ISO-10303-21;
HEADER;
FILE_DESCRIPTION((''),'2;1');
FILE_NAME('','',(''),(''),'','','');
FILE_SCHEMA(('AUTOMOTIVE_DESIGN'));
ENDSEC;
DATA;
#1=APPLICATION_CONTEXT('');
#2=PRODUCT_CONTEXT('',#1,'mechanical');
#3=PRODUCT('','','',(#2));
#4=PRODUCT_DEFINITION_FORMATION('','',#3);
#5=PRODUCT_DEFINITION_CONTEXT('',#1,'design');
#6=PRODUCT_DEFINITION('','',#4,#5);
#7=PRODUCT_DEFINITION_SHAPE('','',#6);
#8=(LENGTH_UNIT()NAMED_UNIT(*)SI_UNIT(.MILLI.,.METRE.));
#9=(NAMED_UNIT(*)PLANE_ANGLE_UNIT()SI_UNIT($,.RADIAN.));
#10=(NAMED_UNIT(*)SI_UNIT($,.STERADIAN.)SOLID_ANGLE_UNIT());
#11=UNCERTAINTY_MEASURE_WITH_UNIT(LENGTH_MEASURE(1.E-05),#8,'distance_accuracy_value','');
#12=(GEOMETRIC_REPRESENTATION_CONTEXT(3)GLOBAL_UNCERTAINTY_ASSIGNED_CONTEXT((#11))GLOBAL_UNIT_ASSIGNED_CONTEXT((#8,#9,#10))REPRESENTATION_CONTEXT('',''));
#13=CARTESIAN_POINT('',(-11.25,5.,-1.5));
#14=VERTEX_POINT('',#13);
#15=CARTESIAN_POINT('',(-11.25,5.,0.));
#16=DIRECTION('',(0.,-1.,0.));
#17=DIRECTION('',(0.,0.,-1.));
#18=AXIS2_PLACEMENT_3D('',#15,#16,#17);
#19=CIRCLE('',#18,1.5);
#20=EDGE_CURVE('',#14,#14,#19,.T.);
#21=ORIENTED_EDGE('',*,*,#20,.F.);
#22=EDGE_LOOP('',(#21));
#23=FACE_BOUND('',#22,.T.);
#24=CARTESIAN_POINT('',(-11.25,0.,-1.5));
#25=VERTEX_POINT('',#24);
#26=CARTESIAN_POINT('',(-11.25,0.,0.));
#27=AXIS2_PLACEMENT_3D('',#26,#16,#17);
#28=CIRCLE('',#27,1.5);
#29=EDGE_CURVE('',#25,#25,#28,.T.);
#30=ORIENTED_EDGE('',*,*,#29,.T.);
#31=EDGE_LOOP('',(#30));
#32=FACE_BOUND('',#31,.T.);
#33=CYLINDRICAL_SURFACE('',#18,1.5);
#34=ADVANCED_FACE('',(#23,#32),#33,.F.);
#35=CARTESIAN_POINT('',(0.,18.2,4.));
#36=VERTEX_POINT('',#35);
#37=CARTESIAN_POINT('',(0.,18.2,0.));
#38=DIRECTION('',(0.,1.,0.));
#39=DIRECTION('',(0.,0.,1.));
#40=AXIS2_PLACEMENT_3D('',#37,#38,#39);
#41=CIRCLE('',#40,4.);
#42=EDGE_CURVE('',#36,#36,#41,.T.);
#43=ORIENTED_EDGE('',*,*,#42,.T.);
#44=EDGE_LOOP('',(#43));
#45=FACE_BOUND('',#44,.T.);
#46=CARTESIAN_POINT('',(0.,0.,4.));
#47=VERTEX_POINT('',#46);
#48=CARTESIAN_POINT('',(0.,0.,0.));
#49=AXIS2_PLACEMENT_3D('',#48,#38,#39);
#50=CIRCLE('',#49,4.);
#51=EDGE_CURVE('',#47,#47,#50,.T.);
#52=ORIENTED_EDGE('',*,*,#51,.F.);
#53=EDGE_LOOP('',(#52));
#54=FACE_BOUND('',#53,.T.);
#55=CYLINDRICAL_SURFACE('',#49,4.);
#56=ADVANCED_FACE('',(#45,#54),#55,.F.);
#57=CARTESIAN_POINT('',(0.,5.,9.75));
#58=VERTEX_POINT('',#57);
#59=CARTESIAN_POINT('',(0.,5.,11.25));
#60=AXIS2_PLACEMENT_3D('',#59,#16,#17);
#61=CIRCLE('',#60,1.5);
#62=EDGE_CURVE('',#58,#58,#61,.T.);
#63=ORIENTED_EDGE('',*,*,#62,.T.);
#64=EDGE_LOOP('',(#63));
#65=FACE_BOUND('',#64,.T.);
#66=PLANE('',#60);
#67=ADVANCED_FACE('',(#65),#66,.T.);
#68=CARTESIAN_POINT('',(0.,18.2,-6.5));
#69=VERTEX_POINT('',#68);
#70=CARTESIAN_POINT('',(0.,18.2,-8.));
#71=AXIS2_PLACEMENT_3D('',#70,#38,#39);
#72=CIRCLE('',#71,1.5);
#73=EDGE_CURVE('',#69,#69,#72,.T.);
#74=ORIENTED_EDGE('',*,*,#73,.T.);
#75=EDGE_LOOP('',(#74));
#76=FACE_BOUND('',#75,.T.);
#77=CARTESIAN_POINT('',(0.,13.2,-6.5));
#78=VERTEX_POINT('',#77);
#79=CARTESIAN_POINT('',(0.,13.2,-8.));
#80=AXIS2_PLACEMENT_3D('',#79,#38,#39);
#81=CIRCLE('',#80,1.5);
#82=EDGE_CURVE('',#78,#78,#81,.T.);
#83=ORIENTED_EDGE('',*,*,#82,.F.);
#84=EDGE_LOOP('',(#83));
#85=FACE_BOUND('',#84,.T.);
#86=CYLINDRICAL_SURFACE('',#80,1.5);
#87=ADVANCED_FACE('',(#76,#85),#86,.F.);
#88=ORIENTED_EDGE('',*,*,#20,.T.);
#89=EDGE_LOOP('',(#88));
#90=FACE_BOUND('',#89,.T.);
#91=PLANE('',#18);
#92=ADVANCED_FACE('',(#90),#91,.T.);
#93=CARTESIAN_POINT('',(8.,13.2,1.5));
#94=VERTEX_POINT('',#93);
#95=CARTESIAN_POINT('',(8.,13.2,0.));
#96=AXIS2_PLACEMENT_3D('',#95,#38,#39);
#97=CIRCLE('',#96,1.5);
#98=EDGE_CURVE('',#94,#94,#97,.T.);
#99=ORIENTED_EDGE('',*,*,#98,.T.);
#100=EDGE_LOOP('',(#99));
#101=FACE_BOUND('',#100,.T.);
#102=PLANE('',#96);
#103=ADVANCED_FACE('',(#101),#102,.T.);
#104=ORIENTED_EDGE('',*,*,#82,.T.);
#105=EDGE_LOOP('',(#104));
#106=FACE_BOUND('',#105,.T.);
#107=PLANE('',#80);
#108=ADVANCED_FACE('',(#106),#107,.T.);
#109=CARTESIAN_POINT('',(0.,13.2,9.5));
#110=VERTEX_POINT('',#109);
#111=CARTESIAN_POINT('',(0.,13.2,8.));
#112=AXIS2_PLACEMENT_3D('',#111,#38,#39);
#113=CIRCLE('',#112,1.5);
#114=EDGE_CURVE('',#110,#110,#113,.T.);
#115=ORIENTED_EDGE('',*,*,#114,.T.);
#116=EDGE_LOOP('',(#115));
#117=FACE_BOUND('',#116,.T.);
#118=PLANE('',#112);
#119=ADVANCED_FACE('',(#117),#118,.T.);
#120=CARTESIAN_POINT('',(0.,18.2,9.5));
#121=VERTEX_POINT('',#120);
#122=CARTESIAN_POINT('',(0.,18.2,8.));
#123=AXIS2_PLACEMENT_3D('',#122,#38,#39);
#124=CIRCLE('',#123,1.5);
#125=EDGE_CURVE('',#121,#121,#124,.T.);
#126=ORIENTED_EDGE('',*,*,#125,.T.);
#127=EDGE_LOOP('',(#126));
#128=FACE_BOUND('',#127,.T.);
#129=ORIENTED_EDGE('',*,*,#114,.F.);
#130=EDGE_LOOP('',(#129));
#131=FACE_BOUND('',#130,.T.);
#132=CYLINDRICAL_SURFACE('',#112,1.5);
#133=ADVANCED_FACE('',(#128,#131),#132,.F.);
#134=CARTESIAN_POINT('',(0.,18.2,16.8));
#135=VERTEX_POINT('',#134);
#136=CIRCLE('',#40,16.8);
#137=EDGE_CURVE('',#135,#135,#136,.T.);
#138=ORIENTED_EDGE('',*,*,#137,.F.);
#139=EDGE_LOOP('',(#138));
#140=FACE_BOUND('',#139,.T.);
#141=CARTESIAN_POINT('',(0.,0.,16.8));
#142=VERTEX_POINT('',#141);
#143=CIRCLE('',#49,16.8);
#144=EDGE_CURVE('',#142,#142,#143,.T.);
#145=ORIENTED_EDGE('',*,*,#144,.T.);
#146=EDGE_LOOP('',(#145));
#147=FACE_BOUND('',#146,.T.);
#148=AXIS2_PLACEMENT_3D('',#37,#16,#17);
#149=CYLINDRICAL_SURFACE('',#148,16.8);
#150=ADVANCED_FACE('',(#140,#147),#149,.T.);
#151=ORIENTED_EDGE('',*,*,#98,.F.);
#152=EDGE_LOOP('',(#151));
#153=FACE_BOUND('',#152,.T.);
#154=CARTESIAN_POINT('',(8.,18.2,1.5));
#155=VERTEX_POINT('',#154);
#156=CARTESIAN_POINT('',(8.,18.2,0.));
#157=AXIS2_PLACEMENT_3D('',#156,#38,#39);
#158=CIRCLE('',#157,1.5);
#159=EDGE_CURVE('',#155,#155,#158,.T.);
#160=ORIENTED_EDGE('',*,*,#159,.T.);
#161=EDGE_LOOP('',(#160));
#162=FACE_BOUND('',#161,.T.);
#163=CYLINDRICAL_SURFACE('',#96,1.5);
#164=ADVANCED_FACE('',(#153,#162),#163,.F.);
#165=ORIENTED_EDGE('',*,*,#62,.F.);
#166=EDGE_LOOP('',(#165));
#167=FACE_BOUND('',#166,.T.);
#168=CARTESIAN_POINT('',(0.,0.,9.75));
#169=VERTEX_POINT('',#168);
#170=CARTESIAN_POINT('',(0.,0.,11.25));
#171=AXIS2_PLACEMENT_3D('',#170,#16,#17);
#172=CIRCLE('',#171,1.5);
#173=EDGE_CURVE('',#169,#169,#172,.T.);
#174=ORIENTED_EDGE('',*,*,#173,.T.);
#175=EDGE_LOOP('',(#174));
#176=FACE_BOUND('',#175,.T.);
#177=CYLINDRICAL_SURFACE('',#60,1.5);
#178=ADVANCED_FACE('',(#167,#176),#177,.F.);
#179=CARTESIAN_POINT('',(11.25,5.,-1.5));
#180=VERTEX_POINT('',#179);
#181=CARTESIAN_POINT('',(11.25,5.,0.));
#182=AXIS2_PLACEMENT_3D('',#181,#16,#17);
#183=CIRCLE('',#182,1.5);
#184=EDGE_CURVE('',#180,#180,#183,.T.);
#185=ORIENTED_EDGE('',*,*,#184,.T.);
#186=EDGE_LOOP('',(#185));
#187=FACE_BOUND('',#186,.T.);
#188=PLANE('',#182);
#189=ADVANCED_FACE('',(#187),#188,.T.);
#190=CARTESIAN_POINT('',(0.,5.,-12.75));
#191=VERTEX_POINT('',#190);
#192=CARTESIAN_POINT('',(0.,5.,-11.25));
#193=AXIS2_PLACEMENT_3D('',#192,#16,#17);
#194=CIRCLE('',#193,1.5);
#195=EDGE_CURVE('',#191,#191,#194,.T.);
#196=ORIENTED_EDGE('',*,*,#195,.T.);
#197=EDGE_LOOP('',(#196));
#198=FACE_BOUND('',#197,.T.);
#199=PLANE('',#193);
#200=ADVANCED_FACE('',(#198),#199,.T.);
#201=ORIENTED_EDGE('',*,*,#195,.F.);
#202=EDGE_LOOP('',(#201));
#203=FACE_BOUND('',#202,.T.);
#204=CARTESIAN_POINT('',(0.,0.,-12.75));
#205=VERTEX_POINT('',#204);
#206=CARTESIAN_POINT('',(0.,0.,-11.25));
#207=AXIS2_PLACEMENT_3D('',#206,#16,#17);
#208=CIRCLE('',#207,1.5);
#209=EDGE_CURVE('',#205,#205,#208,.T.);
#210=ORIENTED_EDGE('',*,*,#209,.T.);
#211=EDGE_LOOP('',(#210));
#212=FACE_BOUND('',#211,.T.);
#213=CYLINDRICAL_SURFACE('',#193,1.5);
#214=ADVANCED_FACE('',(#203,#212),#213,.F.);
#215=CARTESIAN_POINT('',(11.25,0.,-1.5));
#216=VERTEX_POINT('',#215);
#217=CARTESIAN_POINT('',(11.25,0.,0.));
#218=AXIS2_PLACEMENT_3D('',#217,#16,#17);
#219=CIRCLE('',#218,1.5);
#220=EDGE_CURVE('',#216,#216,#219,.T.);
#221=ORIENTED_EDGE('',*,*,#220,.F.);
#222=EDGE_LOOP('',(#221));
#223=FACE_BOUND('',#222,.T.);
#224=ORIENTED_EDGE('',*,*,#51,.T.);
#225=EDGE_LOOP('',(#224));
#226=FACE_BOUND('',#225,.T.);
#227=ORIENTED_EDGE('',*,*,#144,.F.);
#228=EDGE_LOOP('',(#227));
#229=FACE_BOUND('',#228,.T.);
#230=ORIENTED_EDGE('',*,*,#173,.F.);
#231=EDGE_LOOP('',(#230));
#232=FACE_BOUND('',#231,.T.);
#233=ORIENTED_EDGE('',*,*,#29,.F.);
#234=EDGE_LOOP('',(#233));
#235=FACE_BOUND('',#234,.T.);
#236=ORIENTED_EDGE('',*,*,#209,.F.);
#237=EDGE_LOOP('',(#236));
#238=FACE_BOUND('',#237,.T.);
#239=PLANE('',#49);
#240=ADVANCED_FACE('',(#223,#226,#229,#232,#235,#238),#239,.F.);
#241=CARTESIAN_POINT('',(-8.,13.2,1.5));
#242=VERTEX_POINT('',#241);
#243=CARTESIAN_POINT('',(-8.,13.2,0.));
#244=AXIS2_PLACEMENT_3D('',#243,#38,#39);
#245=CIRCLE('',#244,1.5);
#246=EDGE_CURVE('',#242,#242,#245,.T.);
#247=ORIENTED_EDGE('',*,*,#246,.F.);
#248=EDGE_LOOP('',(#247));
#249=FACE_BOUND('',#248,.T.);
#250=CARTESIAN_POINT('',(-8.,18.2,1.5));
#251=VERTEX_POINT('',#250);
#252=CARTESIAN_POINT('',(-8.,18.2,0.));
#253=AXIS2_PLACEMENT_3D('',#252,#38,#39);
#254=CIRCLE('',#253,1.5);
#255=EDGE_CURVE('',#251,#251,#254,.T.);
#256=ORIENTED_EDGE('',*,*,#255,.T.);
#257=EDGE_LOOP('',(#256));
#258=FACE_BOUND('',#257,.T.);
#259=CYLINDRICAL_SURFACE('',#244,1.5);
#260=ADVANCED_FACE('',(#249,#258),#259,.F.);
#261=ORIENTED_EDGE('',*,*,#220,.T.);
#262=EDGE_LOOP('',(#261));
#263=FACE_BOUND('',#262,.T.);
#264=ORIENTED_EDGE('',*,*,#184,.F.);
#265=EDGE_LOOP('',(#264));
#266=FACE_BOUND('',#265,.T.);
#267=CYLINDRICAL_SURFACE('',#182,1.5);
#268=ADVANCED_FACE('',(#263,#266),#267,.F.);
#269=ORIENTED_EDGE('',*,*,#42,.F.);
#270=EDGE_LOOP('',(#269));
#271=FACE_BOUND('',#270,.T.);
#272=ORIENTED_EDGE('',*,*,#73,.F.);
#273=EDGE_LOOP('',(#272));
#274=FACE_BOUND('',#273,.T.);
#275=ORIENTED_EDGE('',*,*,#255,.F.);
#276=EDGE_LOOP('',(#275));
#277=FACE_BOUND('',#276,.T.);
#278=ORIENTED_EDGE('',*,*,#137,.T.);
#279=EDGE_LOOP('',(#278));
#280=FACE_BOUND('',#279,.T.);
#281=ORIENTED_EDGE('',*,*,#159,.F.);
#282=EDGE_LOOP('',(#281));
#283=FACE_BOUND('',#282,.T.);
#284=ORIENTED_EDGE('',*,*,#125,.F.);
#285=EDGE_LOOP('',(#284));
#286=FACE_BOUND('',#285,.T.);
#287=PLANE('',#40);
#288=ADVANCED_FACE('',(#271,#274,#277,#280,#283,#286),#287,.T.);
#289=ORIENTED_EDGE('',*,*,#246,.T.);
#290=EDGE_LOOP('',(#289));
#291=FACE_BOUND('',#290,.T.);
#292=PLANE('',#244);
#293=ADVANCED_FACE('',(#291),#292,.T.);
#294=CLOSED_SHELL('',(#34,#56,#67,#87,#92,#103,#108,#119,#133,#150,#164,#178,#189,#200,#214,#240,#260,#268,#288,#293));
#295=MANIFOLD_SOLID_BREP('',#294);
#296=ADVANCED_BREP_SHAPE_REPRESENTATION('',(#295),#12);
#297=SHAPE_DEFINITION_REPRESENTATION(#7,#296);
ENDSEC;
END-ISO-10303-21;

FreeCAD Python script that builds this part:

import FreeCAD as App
import Part
import Sketcher

V = App.Vector

doc = App.newDocument("Part")
body = doc.addObject("PartDesign::Body", "Body")

# Sketch on XZ plane
sketch1 = body.newObject("Sketcher::SketchObject", "Sketch")
sketch1.AttachmentSupport = (doc.getObject("XZ_Plane"), [""])
sketch1.MapMode = "FlatFace"
sketch1.addGeometry(Part.Circle(V(0, 0, 0), V(0, 0, 1), 16.8), False)
sketch1.addConstraint([
    Sketcher.Constraint("Coincident", 0, 3, -1, 1),
    Sketcher.Constraint("Diameter", 0, 33.6),
])
pad1 = body.newObject("PartDesign::Pad", "Pad")
pad1.Profile = sketch1
pad1.Length = 18.2
pad1.Reversed = True

# Sketch on XZ plane
sketch2 = body.newObject("Sketcher::SketchObject", "Sketch001")
sketch2.AttachmentSupport = (doc.getObject("XZ_Plane"), [""])
sketch2.MapMode = "FlatFace"
sketch2.AttachmentOffset = App.Placement(V(0, 0, -18.2), App.Rotation())
sketch2.addGeometry(Part.Circle(V(0, 0, 0), V(0, 0, 1), 4), False)
sketch2.addConstraint([
    Sketcher.Constraint("Coincident", 0, 3, -1, 1),
    Sketcher.Constraint("Diameter", 0, 8.0),
])
pocket1 = body.newObject("PartDesign::Pocket", "Pocket")
pocket1.Profile = sketch2
pocket1.Type = "ThroughAll"
pocket1.Reversed = True

# Sketch on XZ plane
sketch3 = body.newObject("Sketcher::SketchObject", "Sketch002")
sketch3.AttachmentSupport = (doc.getObject("XZ_Plane"), [""])
sketch3.MapMode = "FlatFace"
sketch3.AttachmentOffset = App.Placement(V(0, 0, -18.2), App.Rotation())
sketch3.addGeometry([
    Part.Circle(V(0, -8, 0), V(0, 0, 1), 1.5),
    Part.Circle(V(8, 0, 0), V(0, 0, 1), 1.5),
    Part.Circle(V(0, 8, 0), V(0, 0, 1), 1.5),
    Part.Circle(V(-8, 0, 0), V(0, 0, 1), 1.5),
], False)
sketch3.addConstraint([
    Sketcher.Constraint("Equal", 0, 1),
    Sketcher.Constraint("Equal", 1, 2),
    Sketcher.Constraint("Equal", 2, 3),
    Sketcher.Constraint("Symmetric", 0, 3, 2, 3, -1, 1),
    Sketcher.Constraint("Symmetric", 1, 3, 3, 3, -1, 1),
    Sketcher.Constraint("PointOnObject", 0, 3, -2),
    Sketcher.Constraint("PointOnObject", 1, 3, -1),
    Sketcher.Constraint("Diameter", 0, 3.0),
    Sketcher.Constraint("DistanceY", 0, 3, -1, 1, 8.0),
    Sketcher.Constraint("DistanceX", -1, 1, 1, 3, 8.0),
])
pocket2 = body.newObject("PartDesign::Pocket", "Pocket001")
pocket2.Profile = sketch3
pocket2.Length = 5
pocket2.Reversed = True

# Sketch on XZ plane
sketch4 = body.newObject("Sketcher::SketchObject", "Sketch003")
sketch4.AttachmentSupport = (doc.getObject("XZ_Plane"), [""])
sketch4.MapMode = "FlatFace"
sketch4.addGeometry([
    Part.Circle(V(0, 11.25, 0), V(0, 0, 1), 1.5),
    Part.Circle(V(11.25, 0, 0), V(0, 0, 1), 1.5),
    Part.Circle(V(0, -11.25, 0), V(0, 0, 1), 1.5),
    Part.Circle(V(-11.25, 0, 0), V(0, 0, 1), 1.5),
], False)
sketch4.addConstraint([
    Sketcher.Constraint("Equal", 0, 1),
    Sketcher.Constraint("Equal", 1, 2),
    Sketcher.Constraint("Equal", 2, 3),
    Sketcher.Constraint("Symmetric", 0, 3, 2, 3, -1, 1),
    Sketcher.Constraint("Symmetric", 1, 3, 3, 3, -1, 1),
    Sketcher.Constraint("PointOnObject", 0, 3, -2),
    Sketcher.Constraint("PointOnObject", 1, 3, -1),
    Sketcher.Constraint("Diameter", 0, 3.0),
    Sketcher.Constraint("DistanceY", 2, 3, 0, 3, 22.5),
    Sketcher.Constraint("DistanceX", 3, 3, 1, 3, 22.5),
])
pocket3 = body.newObject("PartDesign::Pocket", "Pocket002")
pocket3.Profile = sketch4
pocket3.Length = 5

doc.recompute()
